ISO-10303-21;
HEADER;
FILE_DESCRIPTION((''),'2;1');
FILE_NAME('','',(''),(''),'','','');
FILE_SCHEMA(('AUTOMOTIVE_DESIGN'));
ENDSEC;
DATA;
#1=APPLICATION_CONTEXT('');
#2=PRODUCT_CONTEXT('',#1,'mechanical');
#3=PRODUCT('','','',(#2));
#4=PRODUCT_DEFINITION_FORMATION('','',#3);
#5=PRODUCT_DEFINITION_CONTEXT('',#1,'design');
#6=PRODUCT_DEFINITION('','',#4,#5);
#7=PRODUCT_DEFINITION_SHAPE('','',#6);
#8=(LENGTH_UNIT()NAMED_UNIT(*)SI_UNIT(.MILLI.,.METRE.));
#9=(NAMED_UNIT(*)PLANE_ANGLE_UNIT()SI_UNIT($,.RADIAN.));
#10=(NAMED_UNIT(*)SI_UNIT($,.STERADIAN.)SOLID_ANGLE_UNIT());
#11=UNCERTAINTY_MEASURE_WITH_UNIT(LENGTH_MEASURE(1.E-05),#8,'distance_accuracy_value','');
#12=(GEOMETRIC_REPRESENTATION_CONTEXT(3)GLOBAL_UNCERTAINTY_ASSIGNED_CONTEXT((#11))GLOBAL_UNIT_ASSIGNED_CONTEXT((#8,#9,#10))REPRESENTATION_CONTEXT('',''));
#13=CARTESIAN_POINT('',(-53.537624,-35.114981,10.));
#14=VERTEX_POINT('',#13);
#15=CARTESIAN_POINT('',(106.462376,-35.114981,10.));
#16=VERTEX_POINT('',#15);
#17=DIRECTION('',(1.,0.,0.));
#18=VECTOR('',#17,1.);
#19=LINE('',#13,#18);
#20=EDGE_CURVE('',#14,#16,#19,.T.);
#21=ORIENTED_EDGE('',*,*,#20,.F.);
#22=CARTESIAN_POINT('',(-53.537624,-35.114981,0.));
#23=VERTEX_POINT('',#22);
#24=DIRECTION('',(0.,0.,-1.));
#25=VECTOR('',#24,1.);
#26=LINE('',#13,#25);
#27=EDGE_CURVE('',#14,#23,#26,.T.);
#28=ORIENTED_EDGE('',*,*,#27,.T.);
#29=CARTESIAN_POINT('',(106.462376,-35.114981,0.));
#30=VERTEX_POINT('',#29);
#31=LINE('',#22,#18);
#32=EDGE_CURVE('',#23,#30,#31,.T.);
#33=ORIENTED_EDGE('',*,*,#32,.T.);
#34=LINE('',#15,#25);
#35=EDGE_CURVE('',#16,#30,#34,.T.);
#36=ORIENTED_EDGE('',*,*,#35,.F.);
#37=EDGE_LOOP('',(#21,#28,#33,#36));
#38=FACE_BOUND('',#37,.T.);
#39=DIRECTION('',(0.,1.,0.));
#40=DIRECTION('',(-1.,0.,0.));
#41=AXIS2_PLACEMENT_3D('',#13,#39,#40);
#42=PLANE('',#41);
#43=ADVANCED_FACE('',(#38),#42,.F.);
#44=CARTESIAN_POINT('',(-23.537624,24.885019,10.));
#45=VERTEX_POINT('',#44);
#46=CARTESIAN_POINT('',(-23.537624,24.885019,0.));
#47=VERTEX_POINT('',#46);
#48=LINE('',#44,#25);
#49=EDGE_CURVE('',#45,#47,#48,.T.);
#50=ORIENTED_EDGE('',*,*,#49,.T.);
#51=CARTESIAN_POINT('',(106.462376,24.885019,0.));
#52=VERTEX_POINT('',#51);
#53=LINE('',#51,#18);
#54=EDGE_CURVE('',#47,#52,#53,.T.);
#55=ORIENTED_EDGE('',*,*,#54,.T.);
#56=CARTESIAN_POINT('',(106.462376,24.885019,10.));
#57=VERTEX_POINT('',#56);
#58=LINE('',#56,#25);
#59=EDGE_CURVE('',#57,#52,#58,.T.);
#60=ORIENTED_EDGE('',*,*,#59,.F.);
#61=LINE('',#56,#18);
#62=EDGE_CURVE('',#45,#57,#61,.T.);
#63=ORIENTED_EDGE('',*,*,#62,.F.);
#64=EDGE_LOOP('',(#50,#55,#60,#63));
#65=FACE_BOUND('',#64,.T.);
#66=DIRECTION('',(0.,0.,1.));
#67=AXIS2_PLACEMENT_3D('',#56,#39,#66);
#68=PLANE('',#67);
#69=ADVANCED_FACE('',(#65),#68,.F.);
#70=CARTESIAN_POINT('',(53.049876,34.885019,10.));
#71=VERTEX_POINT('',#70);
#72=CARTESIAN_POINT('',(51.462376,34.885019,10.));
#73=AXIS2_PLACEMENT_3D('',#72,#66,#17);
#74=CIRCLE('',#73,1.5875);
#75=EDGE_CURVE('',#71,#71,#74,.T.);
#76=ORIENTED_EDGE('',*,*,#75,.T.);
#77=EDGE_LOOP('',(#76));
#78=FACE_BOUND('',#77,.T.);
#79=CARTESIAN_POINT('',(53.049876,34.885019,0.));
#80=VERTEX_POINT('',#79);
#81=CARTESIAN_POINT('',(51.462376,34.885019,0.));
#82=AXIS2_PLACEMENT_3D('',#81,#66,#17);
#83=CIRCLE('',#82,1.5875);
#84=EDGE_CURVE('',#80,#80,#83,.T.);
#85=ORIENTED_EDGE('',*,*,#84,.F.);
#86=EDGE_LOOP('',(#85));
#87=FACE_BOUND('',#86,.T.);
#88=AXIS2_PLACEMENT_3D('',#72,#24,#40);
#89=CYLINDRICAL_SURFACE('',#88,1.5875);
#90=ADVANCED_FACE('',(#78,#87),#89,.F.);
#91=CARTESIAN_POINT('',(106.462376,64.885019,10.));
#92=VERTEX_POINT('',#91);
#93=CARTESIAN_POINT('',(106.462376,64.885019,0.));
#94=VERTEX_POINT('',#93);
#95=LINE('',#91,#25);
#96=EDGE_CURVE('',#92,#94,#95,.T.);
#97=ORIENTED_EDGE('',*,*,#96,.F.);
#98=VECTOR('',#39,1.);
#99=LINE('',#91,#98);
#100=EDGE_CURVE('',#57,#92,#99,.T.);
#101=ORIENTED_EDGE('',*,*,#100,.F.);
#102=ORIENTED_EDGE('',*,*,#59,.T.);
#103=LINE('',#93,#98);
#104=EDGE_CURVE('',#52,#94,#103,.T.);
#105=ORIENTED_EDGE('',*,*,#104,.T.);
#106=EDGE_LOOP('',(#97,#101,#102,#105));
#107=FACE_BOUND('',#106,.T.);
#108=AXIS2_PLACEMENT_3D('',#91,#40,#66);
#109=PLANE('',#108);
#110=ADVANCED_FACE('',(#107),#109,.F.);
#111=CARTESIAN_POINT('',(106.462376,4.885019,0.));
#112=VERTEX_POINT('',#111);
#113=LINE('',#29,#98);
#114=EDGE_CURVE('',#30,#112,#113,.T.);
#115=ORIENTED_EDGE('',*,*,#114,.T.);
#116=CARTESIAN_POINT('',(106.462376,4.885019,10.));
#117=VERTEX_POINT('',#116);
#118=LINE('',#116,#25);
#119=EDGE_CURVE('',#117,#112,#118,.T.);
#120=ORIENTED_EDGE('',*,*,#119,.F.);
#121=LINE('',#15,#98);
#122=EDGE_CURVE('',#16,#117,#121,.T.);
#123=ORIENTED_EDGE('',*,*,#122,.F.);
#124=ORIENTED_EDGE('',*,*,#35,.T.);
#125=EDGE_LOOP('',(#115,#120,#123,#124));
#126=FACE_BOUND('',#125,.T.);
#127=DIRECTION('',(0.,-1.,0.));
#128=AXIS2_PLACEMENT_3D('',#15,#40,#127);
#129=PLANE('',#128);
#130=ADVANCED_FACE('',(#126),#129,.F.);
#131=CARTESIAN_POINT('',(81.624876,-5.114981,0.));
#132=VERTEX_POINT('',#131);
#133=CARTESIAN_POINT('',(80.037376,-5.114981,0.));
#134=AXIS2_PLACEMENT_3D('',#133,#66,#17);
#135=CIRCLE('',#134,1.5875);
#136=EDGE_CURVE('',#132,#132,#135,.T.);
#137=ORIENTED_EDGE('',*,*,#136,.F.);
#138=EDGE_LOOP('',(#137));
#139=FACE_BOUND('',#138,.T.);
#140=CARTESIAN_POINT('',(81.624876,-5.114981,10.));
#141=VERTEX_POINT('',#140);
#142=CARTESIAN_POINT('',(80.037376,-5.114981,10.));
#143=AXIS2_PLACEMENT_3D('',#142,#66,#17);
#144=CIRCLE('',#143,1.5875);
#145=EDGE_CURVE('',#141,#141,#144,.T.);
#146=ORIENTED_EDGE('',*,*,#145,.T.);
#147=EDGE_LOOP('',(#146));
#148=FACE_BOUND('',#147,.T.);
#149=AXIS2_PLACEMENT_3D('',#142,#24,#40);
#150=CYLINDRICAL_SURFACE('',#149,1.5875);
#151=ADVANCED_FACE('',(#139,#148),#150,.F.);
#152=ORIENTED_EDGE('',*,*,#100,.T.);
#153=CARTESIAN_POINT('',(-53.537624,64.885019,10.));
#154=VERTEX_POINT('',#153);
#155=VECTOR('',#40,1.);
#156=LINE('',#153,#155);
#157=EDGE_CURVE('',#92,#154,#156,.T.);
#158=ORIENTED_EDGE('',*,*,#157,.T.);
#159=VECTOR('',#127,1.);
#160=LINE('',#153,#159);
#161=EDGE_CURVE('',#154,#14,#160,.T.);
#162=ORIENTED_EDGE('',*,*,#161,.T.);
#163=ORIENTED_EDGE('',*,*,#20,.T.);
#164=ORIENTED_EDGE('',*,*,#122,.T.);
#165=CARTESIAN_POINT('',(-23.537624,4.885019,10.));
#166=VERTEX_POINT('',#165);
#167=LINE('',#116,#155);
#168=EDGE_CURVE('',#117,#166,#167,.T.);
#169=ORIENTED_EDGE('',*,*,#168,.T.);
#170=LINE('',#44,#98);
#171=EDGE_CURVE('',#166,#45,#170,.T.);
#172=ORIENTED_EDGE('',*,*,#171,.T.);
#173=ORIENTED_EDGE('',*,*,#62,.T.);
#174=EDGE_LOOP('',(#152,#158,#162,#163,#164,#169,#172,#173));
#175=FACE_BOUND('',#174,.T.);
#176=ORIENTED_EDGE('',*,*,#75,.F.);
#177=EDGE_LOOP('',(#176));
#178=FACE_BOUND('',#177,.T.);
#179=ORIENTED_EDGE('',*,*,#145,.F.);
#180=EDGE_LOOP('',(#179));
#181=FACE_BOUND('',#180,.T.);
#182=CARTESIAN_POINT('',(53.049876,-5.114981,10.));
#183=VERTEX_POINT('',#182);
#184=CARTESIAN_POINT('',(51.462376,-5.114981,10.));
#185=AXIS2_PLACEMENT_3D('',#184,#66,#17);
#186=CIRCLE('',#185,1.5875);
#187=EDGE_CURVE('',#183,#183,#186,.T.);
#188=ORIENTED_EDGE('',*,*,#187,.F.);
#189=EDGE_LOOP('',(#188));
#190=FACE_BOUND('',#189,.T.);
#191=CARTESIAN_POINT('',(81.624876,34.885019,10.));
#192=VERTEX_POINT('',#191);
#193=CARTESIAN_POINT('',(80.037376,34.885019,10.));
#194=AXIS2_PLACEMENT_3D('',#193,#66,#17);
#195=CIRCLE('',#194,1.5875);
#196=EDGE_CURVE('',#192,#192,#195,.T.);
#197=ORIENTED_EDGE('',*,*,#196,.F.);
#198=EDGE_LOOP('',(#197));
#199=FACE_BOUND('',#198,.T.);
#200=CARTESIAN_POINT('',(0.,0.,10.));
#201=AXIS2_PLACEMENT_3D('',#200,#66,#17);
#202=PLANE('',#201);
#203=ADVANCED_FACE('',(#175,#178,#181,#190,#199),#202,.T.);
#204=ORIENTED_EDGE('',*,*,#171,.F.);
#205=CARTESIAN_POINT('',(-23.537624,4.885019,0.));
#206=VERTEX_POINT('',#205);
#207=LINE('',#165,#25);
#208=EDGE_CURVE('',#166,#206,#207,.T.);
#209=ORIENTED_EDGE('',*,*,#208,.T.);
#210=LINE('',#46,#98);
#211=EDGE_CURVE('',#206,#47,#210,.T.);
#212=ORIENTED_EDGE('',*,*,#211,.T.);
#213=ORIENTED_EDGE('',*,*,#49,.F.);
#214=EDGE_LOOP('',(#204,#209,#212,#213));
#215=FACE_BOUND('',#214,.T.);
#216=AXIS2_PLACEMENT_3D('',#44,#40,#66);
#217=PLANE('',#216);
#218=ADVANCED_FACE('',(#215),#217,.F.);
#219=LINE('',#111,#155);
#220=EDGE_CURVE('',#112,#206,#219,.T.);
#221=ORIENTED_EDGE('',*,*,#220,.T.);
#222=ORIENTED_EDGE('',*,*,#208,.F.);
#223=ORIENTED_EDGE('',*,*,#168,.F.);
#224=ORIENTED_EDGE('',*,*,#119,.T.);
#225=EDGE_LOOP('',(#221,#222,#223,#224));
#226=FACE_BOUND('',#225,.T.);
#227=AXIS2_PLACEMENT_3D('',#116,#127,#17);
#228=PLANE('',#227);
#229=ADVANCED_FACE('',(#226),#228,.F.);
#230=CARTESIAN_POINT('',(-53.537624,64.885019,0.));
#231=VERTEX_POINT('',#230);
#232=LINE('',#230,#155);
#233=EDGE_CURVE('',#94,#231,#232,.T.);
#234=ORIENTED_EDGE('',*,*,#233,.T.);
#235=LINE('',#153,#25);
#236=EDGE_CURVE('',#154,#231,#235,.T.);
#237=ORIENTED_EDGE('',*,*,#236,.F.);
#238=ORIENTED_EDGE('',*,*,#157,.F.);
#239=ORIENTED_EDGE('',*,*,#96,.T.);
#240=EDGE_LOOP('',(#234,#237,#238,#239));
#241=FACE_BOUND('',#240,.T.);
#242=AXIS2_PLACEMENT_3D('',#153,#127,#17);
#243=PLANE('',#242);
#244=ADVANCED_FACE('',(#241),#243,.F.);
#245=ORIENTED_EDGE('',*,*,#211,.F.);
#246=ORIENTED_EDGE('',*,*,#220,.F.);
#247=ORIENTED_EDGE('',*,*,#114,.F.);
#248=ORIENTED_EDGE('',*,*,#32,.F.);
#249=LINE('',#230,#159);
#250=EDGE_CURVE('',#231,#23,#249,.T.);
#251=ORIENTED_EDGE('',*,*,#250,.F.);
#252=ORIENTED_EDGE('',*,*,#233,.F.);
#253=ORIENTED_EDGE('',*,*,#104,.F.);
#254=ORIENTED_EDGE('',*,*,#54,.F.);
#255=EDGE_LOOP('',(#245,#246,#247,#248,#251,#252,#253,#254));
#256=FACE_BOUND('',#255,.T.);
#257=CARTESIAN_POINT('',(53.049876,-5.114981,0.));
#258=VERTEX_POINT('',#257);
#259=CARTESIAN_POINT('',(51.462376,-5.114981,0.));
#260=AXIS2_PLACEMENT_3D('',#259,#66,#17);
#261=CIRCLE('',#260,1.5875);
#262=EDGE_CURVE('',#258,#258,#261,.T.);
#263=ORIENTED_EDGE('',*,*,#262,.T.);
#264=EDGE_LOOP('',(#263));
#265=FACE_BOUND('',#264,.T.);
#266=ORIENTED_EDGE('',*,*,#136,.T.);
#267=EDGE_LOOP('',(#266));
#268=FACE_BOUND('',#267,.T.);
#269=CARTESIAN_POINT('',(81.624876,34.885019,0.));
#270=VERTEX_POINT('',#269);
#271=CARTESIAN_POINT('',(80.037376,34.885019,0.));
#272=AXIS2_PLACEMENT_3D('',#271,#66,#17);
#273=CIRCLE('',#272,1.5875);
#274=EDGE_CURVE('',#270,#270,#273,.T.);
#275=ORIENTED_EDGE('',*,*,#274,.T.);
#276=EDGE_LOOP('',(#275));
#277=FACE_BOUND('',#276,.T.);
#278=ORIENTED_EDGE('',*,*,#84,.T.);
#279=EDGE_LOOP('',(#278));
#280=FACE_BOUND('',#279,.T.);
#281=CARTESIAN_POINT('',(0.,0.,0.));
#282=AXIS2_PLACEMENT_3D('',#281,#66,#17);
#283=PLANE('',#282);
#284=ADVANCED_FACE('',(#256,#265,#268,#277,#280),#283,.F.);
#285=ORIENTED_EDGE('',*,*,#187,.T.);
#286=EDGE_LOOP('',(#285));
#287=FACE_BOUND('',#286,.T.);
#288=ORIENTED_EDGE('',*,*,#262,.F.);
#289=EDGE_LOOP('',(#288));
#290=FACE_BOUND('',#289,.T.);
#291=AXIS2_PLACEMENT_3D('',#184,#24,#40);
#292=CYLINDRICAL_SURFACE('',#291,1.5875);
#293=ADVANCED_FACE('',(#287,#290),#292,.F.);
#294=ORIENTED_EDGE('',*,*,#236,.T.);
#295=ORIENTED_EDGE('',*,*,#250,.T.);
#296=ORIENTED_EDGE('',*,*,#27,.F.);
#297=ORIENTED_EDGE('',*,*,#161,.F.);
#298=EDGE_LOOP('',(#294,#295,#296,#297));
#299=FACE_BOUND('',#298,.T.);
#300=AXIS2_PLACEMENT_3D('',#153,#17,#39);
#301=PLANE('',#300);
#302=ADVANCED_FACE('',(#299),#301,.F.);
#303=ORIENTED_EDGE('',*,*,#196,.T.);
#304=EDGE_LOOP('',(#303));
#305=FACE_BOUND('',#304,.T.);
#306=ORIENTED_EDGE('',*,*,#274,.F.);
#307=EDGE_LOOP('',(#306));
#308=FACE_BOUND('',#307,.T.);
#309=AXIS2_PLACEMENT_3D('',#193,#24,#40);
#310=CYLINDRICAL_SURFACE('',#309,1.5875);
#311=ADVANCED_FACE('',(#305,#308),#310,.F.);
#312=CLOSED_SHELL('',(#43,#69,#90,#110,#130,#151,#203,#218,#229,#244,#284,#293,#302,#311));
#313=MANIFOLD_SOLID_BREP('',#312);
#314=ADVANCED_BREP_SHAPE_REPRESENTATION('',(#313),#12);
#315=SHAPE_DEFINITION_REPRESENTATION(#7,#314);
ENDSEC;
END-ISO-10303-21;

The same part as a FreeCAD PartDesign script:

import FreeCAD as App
import Part
import Sketcher
from FreeCAD import Vector
Q = App.Units.Quantity


def add_polygon(sketch, points):
    """Adds a closed chain of lines whose ends are joined by coincident constraints."""
    first, n = sketch.GeometryCount, len(points)
    for a, b in zip(points, points[1:] + points[:1]):
        sketch.addGeometry(Part.LineSegment(App.Vector(*a, 0), App.Vector(*b, 0)), False)
    for i in range(n):
        sketch.addConstraint(Sketcher.Constraint("Coincident", first + i, 2, first + (i + 1) % n, 1))

doc = App.newDocument("Part")
params = doc.addObject("Spreadsheet::Sheet", "Params")
for row, (alias, value) in enumerate([
    ("sketch1_width", "160 mm"),
    ("sketch1_width2", "130 mm"),
    ("sketch1_height", "100 mm"),
    ("sketch1_height2", "40 mm"),
    ("pad1_length", "10 mm"),
], start=1):
    params.set(f"A{row}", alias)
    params.set(f"B{row}", "=" + value)
    params.setAlias(f"B{row}", alias)

body = doc.addObject("PartDesign::Body", "Body")

sketch1 = body.newObject("Sketcher::SketchObject", "Sketch")
sketch1.AttachmentSupport = (doc.getObject("XY_Plane"), [""])
sketch1.MapMode = "FlatFace"
add_polygon(sketch1, [(106.5, 64.9), (-53.5, 64.9), (-53.5, -35.1), (106.5, -35.1), (106.5, 4.9), (-23.5, 4.9), (-23.5, 24.9), (106.5, 24.9)])
sketch1.addGeometry(Part.Circle(Vector(80, -5.1, 0), Vector(0, 0, 1), 1.6), False)
sketch1.addGeometry(Part.Circle(Vector(51.5, -5.1, 0), Vector(0, 0, 1), 1.6), False)
sketch1.addGeometry(Part.Circle(Vector(80, 34.9, 0), Vector(0, 0, 1), 1.6), False)
sketch1.addGeometry(Part.Circle(Vector(51.5, 34.9, 0), Vector(0, 0, 1), 1.6), False)
sketch1.addConstraint([
    Sketcher.Constraint("Horizontal", 0),
    Sketcher.Constraint("Vertical", 1),
    Sketcher.Constraint("Horizontal", 2),
    Sketcher.Constraint("Vertical", 3),
    Sketcher.Constraint("Horizontal", 4),
    Sketcher.Constraint("Vertical", 5),
    Sketcher.Constraint("Horizontal", 6),
    Sketcher.Constraint("Vertical", 7),
    Sketcher.Constraint("Equal", 8, 9),
    Sketcher.Constraint("Equal", 9, 10),
    Sketcher.Constraint("Equal", 10, 11),
    Sketcher.Constraint("Horizontal", 8, 3, 9, 3),
    Sketcher.Constraint("Horizontal", 10, 3, 11, 3),
    Sketcher.Constraint("Vertical", 8, 3, 10, 3),
    Sketcher.Constraint("Vertical", 9, 3, 11, 3),
    Sketcher.Constraint("Vertical", 3, 2, 6, 2),
    Sketcher.Constraint("Equal", 3, 7),
    Sketcher.Constraint("DistanceX", 0, 2, 0, 1, Q("160 mm")),
    Sketcher.Constraint("DistanceX", 4, 2, 4, 1, Q("130 mm")),
    Sketcher.Constraint("DistanceY", 1, 2, 1, 1, Q("100 mm")),
    Sketcher.Constraint("DistanceY", 3, 1, 3, 2, Q("40 mm")),
    Sketcher.Constraint("Diameter", 8, Q("3.175 mm")),
    Sketcher.Constraint("DistanceY", 8, 3, 10, 3, Q("40 mm")),
    Sketcher.Constraint("DistanceX", 0, 2, 11, 3, Q("105 mm")),
    Sketcher.Constraint("DistanceY", 11, 3, 0, 2, Q("30 mm")),
    Sketcher.Constraint("DistanceX", 9, 3, 8, 3, Q("28.575 mm")),
    Sketcher.Constraint("DistanceY", 8, 3, -1, 1, Q("5.114981 mm")),
    Sketcher.Constraint("DistanceX", -1, 1, 8, 3, Q("80.037376 mm")),
])
sketch1.setExpression("Constraints[25]", "Params.sketch1_width")
sketch1.setExpression("Constraints[26]", "Params.sketch1_width2")
sketch1.setExpression("Constraints[27]", "Params.sketch1_height")
sketch1.setExpression("Constraints[28]", "Params.sketch1_height2")
pad1 = body.newObject("PartDesign::Pad", "Pad")
pad1.Profile = sketch1
pad1.setExpression("Length", "Params.pad1_length")

doc.recompute()
